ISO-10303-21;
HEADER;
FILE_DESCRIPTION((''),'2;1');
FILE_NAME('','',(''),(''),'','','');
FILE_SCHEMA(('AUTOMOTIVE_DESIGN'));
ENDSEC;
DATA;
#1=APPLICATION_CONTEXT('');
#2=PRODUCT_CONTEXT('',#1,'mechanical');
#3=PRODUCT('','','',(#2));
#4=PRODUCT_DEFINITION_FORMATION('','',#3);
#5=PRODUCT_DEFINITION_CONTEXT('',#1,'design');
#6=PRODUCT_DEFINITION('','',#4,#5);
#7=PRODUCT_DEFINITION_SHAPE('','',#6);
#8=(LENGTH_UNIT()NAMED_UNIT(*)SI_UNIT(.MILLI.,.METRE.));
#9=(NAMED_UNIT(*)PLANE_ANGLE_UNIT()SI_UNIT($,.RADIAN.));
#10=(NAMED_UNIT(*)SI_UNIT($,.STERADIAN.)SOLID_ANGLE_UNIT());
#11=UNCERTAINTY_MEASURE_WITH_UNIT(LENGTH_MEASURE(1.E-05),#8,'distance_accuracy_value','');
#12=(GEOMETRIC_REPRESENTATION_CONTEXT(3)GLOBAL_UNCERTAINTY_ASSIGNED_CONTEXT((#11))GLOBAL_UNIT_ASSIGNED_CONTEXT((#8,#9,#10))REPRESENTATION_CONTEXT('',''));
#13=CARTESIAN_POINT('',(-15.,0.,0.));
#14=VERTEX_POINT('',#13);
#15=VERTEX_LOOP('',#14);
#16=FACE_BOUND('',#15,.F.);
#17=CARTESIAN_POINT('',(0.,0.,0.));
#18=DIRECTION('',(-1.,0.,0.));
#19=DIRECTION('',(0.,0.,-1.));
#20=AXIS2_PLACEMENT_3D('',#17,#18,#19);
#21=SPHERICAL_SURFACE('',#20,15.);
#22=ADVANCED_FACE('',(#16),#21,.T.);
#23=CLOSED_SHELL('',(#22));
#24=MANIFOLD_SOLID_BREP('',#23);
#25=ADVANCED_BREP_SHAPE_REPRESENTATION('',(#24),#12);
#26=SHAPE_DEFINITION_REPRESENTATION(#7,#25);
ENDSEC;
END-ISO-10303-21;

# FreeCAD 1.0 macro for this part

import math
import FreeCAD as App
import Part
import Sketcher
from FreeCAD import Vector
Q = App.Units.Quantity

doc = App.newDocument("Part")
body = doc.addObject("PartDesign::Body", "Body")

sketch1 = body.newObject("Sketcher::SketchObject", "Sketch")
sketch1.AttachmentSupport = (doc.getObject("XZ_Plane"), [""])
sketch1.MapMode = "FlatFace"
sketch1.addGeometry(Part.LineSegment(Vector(-15, 0, 0), Vector(15, 0, 0)), False)
sketch1.addGeometry(Part.ArcOfCircle(Part.Circle(Vector(0, 0, 0), Vector(0, 0, 1), 15), math.radians(180), math.radians(360)), False)
sketch1.addConstraint(Sketcher.Constraint("Coincident", 0, 1, 1, 1))
sketch1.addConstraint(Sketcher.Constraint("Coincident", 1, 2, 0, 2))
sketch1.addConstraint(Sketcher.Constraint("Horizontal", 0))
sketch1.addConstraint(Sketcher.Constraint("Coincident", 1, 3, -1, 1))
sketch1.addConstraint(Sketcher.Constraint("PointOnObject", 0, 1, -1))
sketch1.addConstraint(Sketcher.Constraint("Radius", 1, Q("15 mm")))
revolution = body.newObject("PartDesign::Revolution", "Revolution")
revolution.Profile = sketch1
revolution.ReferenceAxis = (sketch1, ["H_Axis"])
revolution.Angle = 360

doc.recompute()
